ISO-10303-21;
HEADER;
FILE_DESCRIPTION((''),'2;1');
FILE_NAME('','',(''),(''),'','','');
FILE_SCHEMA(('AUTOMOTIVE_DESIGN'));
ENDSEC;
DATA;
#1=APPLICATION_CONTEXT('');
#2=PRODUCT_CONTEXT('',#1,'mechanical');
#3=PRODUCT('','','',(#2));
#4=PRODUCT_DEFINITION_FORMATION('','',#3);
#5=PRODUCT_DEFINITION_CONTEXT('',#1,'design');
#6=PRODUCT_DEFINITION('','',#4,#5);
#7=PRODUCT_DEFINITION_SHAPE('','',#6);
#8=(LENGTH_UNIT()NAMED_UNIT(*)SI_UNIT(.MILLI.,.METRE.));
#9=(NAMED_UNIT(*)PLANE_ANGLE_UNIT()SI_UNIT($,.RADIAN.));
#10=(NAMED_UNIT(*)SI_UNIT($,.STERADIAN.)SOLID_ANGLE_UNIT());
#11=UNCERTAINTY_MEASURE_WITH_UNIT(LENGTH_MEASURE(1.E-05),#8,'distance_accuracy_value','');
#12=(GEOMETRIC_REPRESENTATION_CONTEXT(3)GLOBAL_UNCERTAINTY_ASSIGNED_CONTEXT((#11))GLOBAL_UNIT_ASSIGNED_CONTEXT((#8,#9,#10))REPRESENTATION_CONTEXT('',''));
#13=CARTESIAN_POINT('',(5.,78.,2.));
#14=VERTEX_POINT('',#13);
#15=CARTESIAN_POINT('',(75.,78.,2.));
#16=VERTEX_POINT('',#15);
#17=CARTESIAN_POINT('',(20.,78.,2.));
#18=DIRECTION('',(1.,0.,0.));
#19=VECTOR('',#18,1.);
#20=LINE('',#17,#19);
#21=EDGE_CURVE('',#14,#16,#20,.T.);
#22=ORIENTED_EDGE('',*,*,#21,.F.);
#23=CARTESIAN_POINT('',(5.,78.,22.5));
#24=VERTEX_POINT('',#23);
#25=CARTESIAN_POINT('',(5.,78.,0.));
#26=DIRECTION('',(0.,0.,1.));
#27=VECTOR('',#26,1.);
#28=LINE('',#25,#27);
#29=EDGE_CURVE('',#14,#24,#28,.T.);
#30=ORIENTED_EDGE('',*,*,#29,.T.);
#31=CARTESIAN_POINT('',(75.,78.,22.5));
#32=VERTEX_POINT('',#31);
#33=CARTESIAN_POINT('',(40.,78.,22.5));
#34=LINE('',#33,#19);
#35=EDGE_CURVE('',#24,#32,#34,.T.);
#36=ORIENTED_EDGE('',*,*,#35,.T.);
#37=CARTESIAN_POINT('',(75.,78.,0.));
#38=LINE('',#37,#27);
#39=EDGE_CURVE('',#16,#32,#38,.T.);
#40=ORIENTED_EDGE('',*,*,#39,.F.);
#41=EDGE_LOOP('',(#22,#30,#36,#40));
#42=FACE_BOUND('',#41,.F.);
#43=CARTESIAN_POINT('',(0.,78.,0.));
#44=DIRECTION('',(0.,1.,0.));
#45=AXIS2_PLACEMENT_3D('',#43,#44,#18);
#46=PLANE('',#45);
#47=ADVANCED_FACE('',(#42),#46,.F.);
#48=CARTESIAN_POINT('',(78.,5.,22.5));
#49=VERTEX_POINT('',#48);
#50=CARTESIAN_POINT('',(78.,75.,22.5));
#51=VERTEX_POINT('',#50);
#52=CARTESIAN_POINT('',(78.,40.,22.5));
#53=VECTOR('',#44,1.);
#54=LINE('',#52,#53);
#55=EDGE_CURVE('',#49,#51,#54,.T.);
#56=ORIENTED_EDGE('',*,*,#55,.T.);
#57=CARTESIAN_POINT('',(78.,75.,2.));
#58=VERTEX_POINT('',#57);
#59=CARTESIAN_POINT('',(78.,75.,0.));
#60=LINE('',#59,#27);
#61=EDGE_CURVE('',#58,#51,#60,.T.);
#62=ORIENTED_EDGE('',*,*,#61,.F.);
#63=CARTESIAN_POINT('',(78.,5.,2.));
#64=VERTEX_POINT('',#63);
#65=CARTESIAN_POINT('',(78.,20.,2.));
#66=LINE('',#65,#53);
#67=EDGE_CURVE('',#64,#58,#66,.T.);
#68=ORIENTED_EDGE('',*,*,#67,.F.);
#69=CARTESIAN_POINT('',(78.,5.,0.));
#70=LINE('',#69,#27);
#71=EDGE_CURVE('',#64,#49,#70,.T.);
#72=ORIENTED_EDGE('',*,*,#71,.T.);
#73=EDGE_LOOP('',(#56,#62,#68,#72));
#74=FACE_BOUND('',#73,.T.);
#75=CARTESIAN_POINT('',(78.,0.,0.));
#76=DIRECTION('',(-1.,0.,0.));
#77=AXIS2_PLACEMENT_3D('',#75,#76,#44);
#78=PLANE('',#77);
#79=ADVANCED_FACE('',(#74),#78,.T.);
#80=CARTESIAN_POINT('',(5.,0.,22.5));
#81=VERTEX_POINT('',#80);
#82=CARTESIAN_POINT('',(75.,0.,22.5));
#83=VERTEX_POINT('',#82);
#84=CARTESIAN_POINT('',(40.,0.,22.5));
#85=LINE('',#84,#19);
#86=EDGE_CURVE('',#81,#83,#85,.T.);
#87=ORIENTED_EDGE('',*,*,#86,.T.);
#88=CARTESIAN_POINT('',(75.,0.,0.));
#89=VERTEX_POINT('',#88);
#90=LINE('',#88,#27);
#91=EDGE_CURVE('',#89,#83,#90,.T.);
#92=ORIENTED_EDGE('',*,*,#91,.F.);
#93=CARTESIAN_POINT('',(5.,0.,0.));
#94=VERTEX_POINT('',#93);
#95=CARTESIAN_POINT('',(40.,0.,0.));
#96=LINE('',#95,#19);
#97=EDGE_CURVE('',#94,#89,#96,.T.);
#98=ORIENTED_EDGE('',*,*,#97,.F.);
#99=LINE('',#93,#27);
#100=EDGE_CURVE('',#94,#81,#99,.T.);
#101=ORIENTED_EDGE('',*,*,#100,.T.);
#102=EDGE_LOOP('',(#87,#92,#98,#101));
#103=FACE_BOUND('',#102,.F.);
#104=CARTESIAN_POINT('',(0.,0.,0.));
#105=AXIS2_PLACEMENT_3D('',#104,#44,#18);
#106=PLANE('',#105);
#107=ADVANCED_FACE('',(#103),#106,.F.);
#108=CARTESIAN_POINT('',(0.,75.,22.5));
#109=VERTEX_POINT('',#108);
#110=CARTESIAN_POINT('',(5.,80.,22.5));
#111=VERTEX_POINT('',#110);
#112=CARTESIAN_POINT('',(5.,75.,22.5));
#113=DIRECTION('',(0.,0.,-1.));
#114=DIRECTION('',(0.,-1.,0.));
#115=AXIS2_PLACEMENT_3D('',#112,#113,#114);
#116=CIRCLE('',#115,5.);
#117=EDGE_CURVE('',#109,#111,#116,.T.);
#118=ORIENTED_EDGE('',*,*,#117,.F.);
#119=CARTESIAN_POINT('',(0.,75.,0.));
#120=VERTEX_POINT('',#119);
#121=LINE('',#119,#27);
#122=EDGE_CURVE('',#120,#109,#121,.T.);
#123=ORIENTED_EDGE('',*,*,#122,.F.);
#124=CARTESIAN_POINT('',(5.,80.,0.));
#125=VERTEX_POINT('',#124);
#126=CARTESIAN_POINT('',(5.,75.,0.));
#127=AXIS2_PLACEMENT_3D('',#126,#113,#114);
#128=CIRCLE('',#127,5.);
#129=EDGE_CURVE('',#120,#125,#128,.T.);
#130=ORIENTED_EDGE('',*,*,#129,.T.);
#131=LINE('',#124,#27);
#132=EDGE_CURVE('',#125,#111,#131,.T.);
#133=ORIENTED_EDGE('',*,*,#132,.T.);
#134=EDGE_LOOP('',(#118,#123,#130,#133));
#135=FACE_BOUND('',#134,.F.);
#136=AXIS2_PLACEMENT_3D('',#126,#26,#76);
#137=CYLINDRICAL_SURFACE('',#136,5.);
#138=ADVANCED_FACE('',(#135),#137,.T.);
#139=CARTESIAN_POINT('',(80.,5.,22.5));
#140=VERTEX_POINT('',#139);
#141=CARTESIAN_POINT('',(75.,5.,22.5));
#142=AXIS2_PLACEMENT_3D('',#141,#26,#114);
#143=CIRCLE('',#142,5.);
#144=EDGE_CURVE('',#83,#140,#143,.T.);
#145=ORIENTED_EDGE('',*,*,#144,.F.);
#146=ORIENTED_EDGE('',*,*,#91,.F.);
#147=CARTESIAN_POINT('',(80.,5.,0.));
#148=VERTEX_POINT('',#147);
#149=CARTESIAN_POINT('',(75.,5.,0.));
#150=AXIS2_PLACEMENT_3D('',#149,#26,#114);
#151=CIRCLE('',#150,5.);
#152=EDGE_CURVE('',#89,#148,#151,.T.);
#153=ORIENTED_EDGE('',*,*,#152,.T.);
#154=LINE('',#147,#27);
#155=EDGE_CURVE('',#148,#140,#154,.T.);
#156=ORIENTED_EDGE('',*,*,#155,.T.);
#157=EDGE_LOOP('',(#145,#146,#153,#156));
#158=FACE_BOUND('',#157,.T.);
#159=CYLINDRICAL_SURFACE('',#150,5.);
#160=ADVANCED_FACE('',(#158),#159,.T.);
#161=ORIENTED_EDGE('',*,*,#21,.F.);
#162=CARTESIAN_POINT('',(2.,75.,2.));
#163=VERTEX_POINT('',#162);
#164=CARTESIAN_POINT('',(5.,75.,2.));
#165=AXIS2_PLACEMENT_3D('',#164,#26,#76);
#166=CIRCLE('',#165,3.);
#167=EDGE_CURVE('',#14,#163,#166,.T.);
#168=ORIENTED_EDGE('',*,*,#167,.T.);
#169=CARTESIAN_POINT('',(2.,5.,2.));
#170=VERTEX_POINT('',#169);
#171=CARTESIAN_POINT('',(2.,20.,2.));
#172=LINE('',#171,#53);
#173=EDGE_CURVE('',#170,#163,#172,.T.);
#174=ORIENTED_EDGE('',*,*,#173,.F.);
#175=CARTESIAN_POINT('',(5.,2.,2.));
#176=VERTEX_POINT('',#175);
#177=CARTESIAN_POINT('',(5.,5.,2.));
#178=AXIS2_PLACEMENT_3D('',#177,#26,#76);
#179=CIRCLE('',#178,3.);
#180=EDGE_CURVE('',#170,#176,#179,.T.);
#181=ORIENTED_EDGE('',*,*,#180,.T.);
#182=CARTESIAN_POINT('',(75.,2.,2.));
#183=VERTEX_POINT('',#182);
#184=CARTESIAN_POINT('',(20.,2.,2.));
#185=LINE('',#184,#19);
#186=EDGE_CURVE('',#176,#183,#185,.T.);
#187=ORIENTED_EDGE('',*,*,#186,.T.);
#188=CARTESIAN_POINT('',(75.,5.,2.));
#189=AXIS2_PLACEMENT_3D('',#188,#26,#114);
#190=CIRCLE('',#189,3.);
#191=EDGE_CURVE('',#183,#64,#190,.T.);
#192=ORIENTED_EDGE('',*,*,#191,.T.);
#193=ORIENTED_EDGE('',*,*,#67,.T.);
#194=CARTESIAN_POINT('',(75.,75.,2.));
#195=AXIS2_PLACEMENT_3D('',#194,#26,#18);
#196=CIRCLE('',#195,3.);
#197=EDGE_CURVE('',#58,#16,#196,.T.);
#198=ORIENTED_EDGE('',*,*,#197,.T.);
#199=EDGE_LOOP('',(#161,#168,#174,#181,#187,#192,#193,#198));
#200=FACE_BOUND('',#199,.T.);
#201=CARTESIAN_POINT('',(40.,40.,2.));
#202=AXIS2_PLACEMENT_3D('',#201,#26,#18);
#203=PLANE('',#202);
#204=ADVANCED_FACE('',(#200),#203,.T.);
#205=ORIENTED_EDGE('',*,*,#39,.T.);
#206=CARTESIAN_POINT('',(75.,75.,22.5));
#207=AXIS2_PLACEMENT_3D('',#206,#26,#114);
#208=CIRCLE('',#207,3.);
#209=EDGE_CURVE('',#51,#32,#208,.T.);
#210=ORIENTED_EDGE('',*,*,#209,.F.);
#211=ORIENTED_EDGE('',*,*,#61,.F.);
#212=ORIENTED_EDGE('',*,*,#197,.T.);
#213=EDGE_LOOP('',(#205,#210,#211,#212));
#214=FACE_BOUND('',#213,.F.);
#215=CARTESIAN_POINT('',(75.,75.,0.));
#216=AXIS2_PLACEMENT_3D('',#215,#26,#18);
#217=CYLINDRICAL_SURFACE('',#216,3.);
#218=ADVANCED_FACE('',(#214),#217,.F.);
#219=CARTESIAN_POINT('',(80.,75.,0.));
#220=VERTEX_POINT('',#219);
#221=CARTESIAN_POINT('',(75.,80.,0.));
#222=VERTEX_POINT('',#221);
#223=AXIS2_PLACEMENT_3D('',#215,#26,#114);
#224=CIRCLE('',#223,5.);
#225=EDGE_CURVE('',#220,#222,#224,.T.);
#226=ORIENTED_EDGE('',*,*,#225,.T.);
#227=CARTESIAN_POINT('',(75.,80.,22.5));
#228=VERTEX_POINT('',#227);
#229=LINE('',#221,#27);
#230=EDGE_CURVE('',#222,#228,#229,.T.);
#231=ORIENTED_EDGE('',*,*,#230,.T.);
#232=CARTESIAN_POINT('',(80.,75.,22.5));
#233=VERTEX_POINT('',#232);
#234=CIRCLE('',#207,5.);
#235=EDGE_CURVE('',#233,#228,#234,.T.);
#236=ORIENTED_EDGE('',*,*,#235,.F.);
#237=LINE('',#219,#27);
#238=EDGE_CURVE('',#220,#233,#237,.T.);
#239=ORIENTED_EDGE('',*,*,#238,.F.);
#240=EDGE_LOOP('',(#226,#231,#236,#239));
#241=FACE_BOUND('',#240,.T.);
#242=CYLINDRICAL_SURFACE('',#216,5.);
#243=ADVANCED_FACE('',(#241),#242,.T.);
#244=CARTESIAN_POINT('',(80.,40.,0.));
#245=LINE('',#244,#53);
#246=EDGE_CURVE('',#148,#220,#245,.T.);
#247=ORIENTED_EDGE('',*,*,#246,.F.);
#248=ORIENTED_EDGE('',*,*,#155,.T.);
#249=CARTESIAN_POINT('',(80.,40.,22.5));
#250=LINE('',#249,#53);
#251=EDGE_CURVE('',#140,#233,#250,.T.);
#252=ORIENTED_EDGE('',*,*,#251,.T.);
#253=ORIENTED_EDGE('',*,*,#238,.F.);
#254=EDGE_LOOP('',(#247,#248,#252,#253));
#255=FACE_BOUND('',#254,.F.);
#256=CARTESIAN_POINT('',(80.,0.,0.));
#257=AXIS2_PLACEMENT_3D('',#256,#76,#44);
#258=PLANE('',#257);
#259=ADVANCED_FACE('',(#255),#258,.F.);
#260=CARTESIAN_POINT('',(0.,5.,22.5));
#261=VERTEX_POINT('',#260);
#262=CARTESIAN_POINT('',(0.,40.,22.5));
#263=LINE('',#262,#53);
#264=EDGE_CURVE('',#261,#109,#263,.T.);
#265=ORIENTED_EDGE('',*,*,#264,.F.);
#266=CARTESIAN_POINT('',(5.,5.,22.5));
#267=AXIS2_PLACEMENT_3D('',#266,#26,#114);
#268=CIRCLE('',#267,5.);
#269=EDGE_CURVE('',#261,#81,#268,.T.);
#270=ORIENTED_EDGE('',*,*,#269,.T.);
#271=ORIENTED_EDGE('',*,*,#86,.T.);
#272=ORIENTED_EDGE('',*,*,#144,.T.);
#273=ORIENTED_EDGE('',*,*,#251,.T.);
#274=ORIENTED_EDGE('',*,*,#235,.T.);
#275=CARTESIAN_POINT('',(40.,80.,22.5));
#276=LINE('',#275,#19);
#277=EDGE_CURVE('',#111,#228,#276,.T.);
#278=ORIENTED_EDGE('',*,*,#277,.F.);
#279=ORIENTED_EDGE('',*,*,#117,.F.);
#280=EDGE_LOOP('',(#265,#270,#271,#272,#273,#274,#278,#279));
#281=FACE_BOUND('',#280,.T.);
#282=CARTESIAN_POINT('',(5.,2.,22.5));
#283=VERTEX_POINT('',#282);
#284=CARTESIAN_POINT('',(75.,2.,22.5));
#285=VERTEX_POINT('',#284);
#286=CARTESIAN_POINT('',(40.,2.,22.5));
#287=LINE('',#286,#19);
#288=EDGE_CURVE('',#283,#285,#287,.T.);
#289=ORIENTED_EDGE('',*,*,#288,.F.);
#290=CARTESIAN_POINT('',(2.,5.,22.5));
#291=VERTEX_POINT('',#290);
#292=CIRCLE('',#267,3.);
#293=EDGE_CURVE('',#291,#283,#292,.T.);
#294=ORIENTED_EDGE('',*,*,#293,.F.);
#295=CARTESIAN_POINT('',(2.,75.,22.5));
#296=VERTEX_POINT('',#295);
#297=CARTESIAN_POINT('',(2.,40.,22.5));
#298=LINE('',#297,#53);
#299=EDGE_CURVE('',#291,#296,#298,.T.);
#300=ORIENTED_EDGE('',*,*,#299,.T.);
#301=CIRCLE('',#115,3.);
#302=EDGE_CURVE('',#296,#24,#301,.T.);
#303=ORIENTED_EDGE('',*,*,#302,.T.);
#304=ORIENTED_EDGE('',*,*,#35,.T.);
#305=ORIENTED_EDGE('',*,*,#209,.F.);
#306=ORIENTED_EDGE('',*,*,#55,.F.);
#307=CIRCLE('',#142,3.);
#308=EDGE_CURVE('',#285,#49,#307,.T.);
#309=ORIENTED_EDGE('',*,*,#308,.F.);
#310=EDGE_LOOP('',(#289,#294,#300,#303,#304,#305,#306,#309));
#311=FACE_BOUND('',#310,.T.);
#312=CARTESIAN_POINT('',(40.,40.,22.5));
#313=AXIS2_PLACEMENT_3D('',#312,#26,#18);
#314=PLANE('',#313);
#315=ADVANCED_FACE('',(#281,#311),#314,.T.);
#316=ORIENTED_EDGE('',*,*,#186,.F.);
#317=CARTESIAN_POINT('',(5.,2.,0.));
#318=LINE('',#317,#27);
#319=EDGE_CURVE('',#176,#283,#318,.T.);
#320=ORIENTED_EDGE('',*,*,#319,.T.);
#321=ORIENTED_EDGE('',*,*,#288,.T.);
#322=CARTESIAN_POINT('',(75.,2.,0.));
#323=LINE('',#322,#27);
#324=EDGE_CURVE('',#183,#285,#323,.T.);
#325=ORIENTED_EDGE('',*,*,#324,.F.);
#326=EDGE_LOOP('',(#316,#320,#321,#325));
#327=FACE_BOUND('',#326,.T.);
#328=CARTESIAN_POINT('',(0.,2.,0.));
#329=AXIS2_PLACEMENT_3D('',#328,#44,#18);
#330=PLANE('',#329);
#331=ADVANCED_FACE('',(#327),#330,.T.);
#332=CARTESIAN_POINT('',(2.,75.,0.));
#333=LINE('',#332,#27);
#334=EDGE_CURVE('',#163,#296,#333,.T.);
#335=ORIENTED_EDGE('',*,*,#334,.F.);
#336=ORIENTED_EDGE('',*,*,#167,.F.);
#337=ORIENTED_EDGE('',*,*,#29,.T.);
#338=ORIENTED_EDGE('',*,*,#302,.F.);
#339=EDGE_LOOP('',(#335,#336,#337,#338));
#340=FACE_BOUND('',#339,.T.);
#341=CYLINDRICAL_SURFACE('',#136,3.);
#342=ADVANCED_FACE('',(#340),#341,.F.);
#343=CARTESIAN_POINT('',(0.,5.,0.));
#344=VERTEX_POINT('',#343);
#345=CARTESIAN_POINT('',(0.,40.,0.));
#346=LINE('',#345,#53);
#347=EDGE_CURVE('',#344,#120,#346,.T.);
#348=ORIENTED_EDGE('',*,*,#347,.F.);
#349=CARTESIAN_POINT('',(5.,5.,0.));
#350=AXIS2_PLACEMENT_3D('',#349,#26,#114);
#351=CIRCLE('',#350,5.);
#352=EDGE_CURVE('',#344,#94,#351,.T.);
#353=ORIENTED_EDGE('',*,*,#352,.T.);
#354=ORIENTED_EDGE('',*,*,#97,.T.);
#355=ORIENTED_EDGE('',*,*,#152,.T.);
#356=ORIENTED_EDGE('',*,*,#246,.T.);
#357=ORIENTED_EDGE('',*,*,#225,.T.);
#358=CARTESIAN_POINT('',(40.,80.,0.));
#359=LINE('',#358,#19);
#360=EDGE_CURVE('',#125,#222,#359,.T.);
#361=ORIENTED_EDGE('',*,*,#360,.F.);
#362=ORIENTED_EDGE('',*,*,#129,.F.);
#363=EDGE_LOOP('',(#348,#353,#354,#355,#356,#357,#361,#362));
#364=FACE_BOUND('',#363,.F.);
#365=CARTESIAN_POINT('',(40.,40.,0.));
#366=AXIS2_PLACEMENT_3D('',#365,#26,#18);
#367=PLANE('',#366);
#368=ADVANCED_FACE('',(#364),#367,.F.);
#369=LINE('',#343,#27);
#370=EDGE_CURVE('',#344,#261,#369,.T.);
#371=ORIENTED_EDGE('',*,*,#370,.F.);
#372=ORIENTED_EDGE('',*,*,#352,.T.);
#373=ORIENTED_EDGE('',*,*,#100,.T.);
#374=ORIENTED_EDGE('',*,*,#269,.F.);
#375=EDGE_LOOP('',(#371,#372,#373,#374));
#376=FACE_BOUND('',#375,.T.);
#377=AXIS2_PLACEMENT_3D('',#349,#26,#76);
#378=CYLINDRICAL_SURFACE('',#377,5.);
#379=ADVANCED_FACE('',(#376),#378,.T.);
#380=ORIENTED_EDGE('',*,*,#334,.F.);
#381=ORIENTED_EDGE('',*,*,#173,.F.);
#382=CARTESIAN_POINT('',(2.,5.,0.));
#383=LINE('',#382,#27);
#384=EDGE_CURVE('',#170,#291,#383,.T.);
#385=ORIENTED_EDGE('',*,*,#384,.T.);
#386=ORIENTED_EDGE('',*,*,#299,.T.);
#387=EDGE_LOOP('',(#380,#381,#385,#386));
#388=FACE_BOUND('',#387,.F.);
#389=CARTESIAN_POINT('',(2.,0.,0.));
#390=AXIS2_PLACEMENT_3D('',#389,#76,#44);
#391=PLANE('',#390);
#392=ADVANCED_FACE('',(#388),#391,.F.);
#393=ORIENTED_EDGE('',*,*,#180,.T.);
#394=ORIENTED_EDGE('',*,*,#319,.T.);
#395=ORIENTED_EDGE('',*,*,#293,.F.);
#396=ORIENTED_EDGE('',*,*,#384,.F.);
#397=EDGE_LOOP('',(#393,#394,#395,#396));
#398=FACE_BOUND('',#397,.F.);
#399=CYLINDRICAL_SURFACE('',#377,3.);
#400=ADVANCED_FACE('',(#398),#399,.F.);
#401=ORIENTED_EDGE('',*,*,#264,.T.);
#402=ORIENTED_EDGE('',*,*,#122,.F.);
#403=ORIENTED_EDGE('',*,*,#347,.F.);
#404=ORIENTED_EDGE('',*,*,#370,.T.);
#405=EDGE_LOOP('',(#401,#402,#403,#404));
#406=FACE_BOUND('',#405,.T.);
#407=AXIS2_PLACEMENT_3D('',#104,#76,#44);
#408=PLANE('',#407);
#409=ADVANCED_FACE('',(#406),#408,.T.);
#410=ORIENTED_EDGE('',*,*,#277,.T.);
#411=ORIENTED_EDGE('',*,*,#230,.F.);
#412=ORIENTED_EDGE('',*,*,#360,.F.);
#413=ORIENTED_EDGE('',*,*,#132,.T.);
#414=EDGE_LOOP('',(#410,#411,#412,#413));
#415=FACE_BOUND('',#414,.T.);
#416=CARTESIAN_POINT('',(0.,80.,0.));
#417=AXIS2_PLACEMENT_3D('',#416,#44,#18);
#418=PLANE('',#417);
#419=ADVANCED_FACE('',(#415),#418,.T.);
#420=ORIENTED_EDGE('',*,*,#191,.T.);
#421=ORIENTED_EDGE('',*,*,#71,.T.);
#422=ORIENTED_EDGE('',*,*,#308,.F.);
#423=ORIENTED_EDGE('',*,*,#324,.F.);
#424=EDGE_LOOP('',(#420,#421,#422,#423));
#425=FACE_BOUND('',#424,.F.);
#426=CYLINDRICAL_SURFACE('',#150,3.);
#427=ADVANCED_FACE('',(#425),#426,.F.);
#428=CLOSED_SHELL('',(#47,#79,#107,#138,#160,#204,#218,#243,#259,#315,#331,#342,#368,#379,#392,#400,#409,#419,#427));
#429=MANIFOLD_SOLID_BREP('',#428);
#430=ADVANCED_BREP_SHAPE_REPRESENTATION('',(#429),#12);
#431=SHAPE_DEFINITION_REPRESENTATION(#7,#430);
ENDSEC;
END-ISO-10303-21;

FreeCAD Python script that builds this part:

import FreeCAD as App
import Part
import Sketcher

V = App.Vector
Q = App.Units.Quantity


def edges_at(feature, points):
    """Names of the edges that pass closest to the given points."""
    edges = feature.Shape.Edges
    near = lambda p: min(range(len(edges)), key=lambda i: edges[i].distToShape(Part.Vertex(*p))[0])
    return sorted({f"Edge{near(p) + 1}" for p in points})


def faces_at(feature, points):
    """Names of the faces that lie closest to the given points."""
    faces = feature.Shape.Faces
    near = lambda p: min(range(len(faces)), key=lambda i: faces[i].distToShape(Part.Vertex(*p))[0])
    return sorted({f"Face{near(p) + 1}" for p in points})


def add_polygon(sketch, points):
    """Adds a closed chain of lines whose ends are joined by coincident constraints."""
    first, n = sketch.GeometryCount, len(points)
    for a, b in zip(points, points[1:] + points[:1]):
        sketch.addGeometry(Part.LineSegment(App.Vector(*a, 0), App.Vector(*b, 0)), False)
    for i in range(n):
        sketch.addConstraint(Sketcher.Constraint("Coincident", first + i, 2, first + (i + 1) % n, 1))

doc = App.newDocument("Part")
body = doc.addObject("PartDesign::Body", "Body")

sketch1 = doc.addObject("Sketcher::SketchObject", "Sketch")
body.addObject(sketch1)
sketch1.AttachmentSupport = (doc.XY_Plane, [""])
sketch1.MapMode = "FlatFace"
add_polygon(sketch1, [(0, 80), (0, 0), (80, 0), (80, 80)])
sketch1.addConstraint([
    Sketcher.Constraint("Vertical", 0),
    Sketcher.Constraint("Horizontal", 1),
    Sketcher.Constraint("Vertical", 2),
    Sketcher.Constraint("Horizontal", 3),
    Sketcher.Constraint("Coincident", 0, 2, -1, 1),
    Sketcher.Constraint("Equal", 3, 0),
    Sketcher.Constraint("DistanceX", 1, 1, 1, 2, Q("80 mm")),
])
pad1 = doc.addObject("PartDesign::Pad", "Pad")
body.addObject(pad1)
pad1.Profile = sketch1
pad1.Length = 22.5
doc.recompute()

fillet = doc.addObject("PartDesign::Fillet", "Fillet")
body.addObject(fillet)
fillet.Base = (pad1, edges_at(pad1, [
    (80, 0, 11.25),
    (80, 80, 11.25),
    (0, 80, 11.25),
    (0, 0, 11.25),
]))
fillet.Radius = 5
doc.recompute()

thickness = doc.addObject("PartDesign::Thickness", "Thickness")
body.addObject(thickness)
thickness.Base = (fillet, faces_at(fillet, [(40, 40, 22.5)]))
thickness.Value = 2
thickness.Reversed = True
thickness.Join = "Arc"

doc.recompute()
